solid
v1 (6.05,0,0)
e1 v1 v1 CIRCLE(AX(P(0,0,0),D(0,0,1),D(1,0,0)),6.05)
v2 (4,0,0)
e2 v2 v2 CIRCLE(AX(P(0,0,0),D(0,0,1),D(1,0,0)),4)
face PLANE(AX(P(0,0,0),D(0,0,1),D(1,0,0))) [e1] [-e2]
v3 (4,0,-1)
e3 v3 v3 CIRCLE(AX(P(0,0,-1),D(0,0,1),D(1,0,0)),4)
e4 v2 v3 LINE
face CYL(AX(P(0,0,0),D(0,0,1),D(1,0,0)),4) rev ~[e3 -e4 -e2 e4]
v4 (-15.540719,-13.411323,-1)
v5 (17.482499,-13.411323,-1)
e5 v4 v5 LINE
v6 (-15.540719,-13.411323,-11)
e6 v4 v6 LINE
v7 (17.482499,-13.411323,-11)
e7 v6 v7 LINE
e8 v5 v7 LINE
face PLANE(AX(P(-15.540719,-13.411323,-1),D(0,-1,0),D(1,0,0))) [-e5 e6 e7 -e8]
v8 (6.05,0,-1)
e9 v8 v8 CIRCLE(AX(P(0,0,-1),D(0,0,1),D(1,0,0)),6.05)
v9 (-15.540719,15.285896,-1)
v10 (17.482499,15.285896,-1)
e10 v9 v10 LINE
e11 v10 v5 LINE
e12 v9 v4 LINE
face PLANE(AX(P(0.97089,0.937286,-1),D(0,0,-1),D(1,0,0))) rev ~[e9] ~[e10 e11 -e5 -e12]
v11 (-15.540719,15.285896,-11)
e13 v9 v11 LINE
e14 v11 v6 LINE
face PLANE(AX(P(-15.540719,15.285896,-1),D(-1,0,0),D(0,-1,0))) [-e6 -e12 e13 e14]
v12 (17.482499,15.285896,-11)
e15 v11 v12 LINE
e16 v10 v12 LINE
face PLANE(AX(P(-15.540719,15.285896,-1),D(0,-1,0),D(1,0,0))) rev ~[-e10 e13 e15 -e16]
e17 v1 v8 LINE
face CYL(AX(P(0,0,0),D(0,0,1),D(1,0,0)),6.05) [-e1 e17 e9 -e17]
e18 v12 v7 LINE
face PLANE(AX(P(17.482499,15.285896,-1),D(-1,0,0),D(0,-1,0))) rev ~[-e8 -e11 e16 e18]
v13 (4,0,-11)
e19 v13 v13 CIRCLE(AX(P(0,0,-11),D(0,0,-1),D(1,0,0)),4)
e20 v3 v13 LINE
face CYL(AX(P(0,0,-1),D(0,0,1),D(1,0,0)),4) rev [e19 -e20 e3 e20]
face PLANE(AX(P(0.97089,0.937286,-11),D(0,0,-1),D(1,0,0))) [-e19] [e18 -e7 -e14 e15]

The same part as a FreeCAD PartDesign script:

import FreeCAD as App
import Part
import Sketcher

V = App.Vector
Q = App.Units.Quantity


def add_polygon(sketch, points):
    """Adds a closed chain of lines whose ends are joined by coincident constraints."""
    first, n = sketch.GeometryCount, len(points)
    for a, b in zip(points, points[1:] + points[:1]):
        sketch.addGeometry(Part.LineSegment(App.Vector(*a, 0), App.Vector(*b, 0)), False)
    for i in range(n):
        sketch.addConstraint(Sketcher.Constraint("Coincident", first + i, 2, first + (i + 1) % n, 1))

doc = App.newDocument("Part")
body = doc.addObject("PartDesign::Body", "Body")

sketch1 = body.newObject("Sketcher::SketchObject", "Sketch")
sketch1.AttachmentSupport = (doc.getObject("XY_Plane"), [""])
sketch1.MapMode = "FlatFace"
sketch1.addGeometry(Part.Circle(V(0, 0, 0), V(0, 0, 1), 6), False)
sketch1.addGeometry(Part.Circle(V(0, 0, 0), V(0, 0, 1), 4), False)
sketch1.addConstraint(Sketcher.Constraint("Coincident", 0, 3, -1, 1))
sketch1.addConstraint(Sketcher.Constraint("Coincident", 1, 3, -1, 1))
sketch1.addConstraint(Sketcher.Constraint("Diameter", 1, Q("8 mm")))
sketch1.addConstraint(Sketcher.Constraint("Diameter", 0, Q("12.1 mm")))
pad1 = body.newObject("PartDesign::Pad", "Pad")
pad1.Profile = sketch1
pad1.Length = 1
pad1.Reversed = True

sketch2 = body.newObject("Sketcher::SketchObject", "Sketch001")
sketch2.AttachmentSupport = (doc.getObject("XY_Plane"), [""])
sketch2.MapMode = "FlatFace"
sketch2.AttachmentOffset = App.Placement(V(0, 0, -1), App.Rotation())
add_polygon(sketch2, [(-15.5, -13.4), (-15.5, 15.3), (17.5, 15.3), (17.5, -13.4)])
sketch2.addGeometry(Part.Circle(V(0, 0, 0), V(0, 0, 1), 4), False)
sketch2.addConstraint(Sketcher.Constraint("Vertical", 0))
sketch2.addConstraint(Sketcher.Constraint("Horizontal", 1))
sketch2.addConstraint(Sketcher.Constraint("Vertical", 2))
sketch2.addConstraint(Sketcher.Constraint("Horizontal", 3))
sketch2.addConstraint(Sketcher.Constraint("Coincident", 4, 3, -1, 1))
sketch2.addConstraint(Sketcher.Constraint("Diameter", 4, Q("8 mm")))
sketch2.addConstraint(Sketcher.Constraint("DistanceY", 0, 1, 0, 2, Q("28.697219 mm")))
sketch2.addConstraint(Sketcher.Constraint("DistanceX", -1, 1, 1, 2, Q("17.482499 mm")))
sketch2.addConstraint(Sketcher.Constraint("DistanceX", 1, 1, 1, 2, Q("33.023218 mm")))
sketch2.addConstraint(Sketcher.Constraint("DistanceY", -1, 1, 0, 2, Q("15.285896 mm")))
pad2 = body.newObject("PartDesign::Pad", "Pad001")
pad2.Profile = sketch2
pad2.Length = 10
pad2.Reversed = True

doc.recompute()
